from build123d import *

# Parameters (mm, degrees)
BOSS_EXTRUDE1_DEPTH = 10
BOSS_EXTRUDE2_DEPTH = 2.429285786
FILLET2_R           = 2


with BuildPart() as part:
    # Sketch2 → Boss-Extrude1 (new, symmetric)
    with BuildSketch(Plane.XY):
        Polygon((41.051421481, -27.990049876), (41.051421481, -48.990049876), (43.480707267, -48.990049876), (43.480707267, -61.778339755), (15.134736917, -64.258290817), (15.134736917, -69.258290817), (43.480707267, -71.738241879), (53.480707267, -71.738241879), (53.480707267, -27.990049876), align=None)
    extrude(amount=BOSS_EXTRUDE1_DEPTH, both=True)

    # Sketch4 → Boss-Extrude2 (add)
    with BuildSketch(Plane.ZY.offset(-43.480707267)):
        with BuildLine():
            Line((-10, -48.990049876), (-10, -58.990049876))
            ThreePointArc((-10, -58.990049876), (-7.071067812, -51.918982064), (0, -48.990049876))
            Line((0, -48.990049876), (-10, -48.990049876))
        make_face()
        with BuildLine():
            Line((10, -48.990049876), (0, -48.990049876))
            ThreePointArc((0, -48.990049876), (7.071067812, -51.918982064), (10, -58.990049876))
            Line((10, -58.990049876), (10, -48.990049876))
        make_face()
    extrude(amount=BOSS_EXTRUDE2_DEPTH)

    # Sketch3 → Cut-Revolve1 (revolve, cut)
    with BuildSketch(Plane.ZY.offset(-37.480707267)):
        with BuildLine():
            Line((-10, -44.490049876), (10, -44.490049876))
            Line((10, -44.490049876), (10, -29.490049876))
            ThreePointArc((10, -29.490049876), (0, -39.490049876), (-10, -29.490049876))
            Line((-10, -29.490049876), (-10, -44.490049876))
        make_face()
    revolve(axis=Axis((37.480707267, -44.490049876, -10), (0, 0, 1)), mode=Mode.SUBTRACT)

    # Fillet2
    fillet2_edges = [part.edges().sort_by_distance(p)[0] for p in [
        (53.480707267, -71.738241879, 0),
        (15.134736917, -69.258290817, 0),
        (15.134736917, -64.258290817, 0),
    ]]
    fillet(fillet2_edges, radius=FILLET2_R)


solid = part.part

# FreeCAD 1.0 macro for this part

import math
import FreeCAD as App
import Part
import Sketcher
Q = App.Units.Quantity


def edges_at(feature, points):
    """Names of the edges that pass closest to the given points."""
    edges = feature.Shape.Edges
    near = lambda p: min(range(len(edges)), key=lambda i: edges[i].distToShape(Part.Vertex(*p))[0])
    return sorted({f"Edge{near(p) + 1}" for p in points})


def add_polygon(sketch, points):
    """Adds a closed chain of lines whose ends are joined by coincident constraints."""
    first, n = sketch.GeometryCount, len(points)
    for a, b in zip(points, points[1:] + points[:1]):
        sketch.addGeometry(Part.LineSegment(App.Vector(*a, 0), App.Vector(*b, 0)), False)
    for i in range(n):
        sketch.addConstraint(Sketcher.Constraint("Coincident", first + i, 2, first + (i + 1) % n, 1))

doc = App.newDocument("Part")
body = doc.addObject("PartDesign::Body", "Body")

# Sketch on XY plane
sketch1 = body.newObject("Sketcher::SketchObject", "Sketch")
sketch1.AttachmentSupport = (doc.getObject("XY_Plane"), [""])
sketch1.MapMode = "FlatFace"
add_polygon(sketch1, [(41.051421, -27.99005), (41.051421, -48.99005), (43.480707, -48.99005), (43.480707, -61.77834), (15.134737, -64.258291), (15.134737, -69.258291), (43.480707, -71.738242), (53.480707, -71.738242), (53.480707, -27.99005)])  # lines 0-8
sketch1.addConstraint(Sketcher.Constraint("Vertical", 0))
sketch1.addConstraint(Sketcher.Constraint("Horizontal", 1))
sketch1.addConstraint(Sketcher.Constraint("Vertical", 2))
sketch1.addConstraint(Sketcher.Constraint("Vertical", 4))
sketch1.addConstraint(Sketcher.Constraint("Horizontal", 6))
sketch1.addConstraint(Sketcher.Constraint("Vertical", 7))
sketch1.addConstraint(Sketcher.Constraint("Horizontal", 8))
sketch1.addConstraint(Sketcher.Constraint("Vertical", 2, 2, 5, 2))
sketch1.addConstraint(Sketcher.Constraint("Equal", 3, 5))
sketch1.addConstraint(Sketcher.Constraint("DistanceX", 6, 1, 6, 2, Q("10 mm")))
sketch1.addConstraint(Sketcher.Constraint("DistanceY", 0, 2, 0, 1, Q("21 mm")))
sketch1.addConstraint(Sketcher.Constraint("DistanceY", 4, 2, 4, 1, Q("5 mm")))
sketch1.addConstraint(Sketcher.Constraint("Angle", 3, Q("-175 deg")))
sketch1.addConstraint(Sketcher.Constraint("DistanceY", 2, 2, 2, 1, Q("12.78829 mm")))
sketch1.addConstraint(Sketcher.Constraint("DistanceX", 1, 1, 1, 2, Q("2.429286 mm")))
sketch1.addConstraint(Sketcher.Constraint("DistanceY", 7, 1, 7, 2, Q("43.748192 mm")))
sketch1.addConstraint(Sketcher.Constraint("DistanceX", -1, 1, 0, 2, Q("41.051421 mm")))
sketch1.addConstraint(Sketcher.Constraint("DistanceY", 0, 2, -1, 1, Q("48.99005 mm")))
pad1 = body.newObject("PartDesign::Pad", "Pad")
pad1.Profile = sketch1
pad1.Length = 20
pad1.Midplane = True

# Sketch on YZ plane
sketch2 = body.newObject("Sketcher::SketchObject", "Sketch001")
sketch2.AttachmentSupport = (doc.getObject("YZ_Plane"), [""])
sketch2.MapMode = "FlatFace"
sketch2.AttachmentOffset = App.Placement(App.Vector(0, 0, 43.480707), App.Rotation())
sketch2.addGeometry(Part.LineSegment(App.Vector(-48.99005, -10, 0), App.Vector(-58.99005, -10, 0)), False)
sketch2.addGeometry(Part.ArcOfCircle(Part.Circle(App.Vector(-58.99005, 0, 0), App.Vector(0, 0, 1), 10), math.radians(-90), math.radians(0)), False)
sketch2.addGeometry(Part.LineSegment(App.Vector(-48.99005, 0, 0), App.Vector(-48.99005, -10, 0)), False)
sketch2.addGeometry(Part.LineSegment(App.Vector(-48.99005, 10, 0), App.Vector(-48.99005, 0, 0)), False)
sketch2.addGeometry(Part.ArcOfCircle(Part.Circle(App.Vector(-58.99005, 0, 0), App.Vector(0, 0, 1), 10), math.radians(0), math.radians(90)), False)
sketch2.addGeometry(Part.LineSegment(App.Vector(-58.99005, 10, 0), App.Vector(-48.99005, 10, 0)), False)
sketch2.addConstraint(Sketcher.Constraint("Tangent", 0, 2, 1, 1))
sketch2.addConstraint(Sketcher.Constraint("Tangent", 1, 2, 2, 1))
sketch2.addConstraint(Sketcher.Constraint("Coincident", 2, 2, 0, 1))
sketch2.addConstraint(Sketcher.Constraint("Tangent", 3, 2, 4, 1))
sketch2.addConstraint(Sketcher.Constraint("Tangent", 4, 2, 5, 1))
sketch2.addConstraint(Sketcher.Constraint("Coincident", 5, 2, 3, 1))
sketch2.addConstraint(Sketcher.Constraint("Horizontal", 0))
sketch2.addConstraint(Sketcher.Constraint("Vertical", 2))
sketch2.addConstraint(Sketcher.Constraint("Vertical", 3))
sketch2.addConstraint(Sketcher.Constraint("Horizontal", 5))
sketch2.addConstraint(Sketcher.Constraint("Coincident", 4, 3, 1, 3))
sketch2.addConstraint(Sketcher.Constraint("Equal", 1, 4))
sketch2.addConstraint(Sketcher.Constraint("PointOnObject", 1, 3, -1))
sketch2.addConstraint(Sketcher.Constraint("Radius", 1, Q("10 mm")))
sketch2.addConstraint(Sketcher.Constraint("DistanceX", 1, 3, -1, 1, Q("58.99005 mm")))
pad2 = body.newObject("PartDesign::Pad", "Pad001")
pad2.Profile = sketch2
pad2.Length = 2.429286
pad2.Reversed = True

# Sketch on YZ plane
sketch3 = body.newObject("Sketcher::SketchObject", "Sketch002")
sketch3.AttachmentSupport = (doc.getObject("YZ_Plane"), [""])
sketch3.MapMode = "FlatFace"
sketch3.AttachmentOffset = App.Placement(App.Vector(0, 0, 37.480707), App.Rotation())
sketch3.addGeometry(Part.LineSegment(App.Vector(-44.49005, -10, 0), App.Vector(-44.49005, 10, 0)), False)
sketch3.addGeometry(Part.LineSegment(App.Vector(-44.49005, 10, 0), App.Vector(-29.49005, 10, 0)), False)
sketch3.addGeometry(Part.ArcOfCircle(Part.Circle(App.Vector(-29.49005, 0, 0), App.Vector(0, 0, 1), 10), math.radians(90), math.radians(270)), False)
sketch3.addGeometry(Part.LineSegment(App.Vector(-29.49005, -10, 0), App.Vector(-44.49005, -10, 0)), False)
sketch3.addGeometry(Part.LineSegment(App.Vector(-44.49005, -10, 0), App.Vector(-44.49005, 10, 0)), True)  # axis
sketch3.addConstraint(Sketcher.Constraint("Coincident", 0, 2, 1, 1))
sketch3.addConstraint(Sketcher.Constraint("Tangent", 1, 2, 2, 1))
sketch3.addConstraint(Sketcher.Constraint("Tangent", 2, 2, 3, 1))
sketch3.addConstraint(Sketcher.Constraint("Coincident", 3, 2, 0, 1))
sketch3.addConstraint(Sketcher.Constraint("Vertical", 0))
sketch3.addConstraint(Sketcher.Constraint("Horizontal", 1))
sketch3.addConstraint(Sketcher.Constraint("Horizontal", 3))
sketch3.addConstraint(Sketcher.Constraint("Vertical", 4))
sketch3.addConstraint(Sketcher.Constraint("Coincident", 4, 1, 3, 2))
sketch3.addConstraint(Sketcher.Constraint("PointOnObject", 2, 3, -1))
sketch3.addConstraint(Sketcher.Constraint("Horizontal", 1, 2, 4, 2))
sketch3.addConstraint(Sketcher.Constraint("Radius", 2, Q("10 mm")))
sketch3.addConstraint(Sketcher.Constraint("DistanceX", 1, 1, 1, 2, Q("15 mm")))
sketch3.addConstraint(Sketcher.Constraint("DistanceX", 2, 3, -1, 1, Q("29.49005 mm")))
groove = body.newObject("PartDesign::Groove", "Groove")
groove.Profile = sketch3
groove.ReferenceAxis = (sketch3, ["Axis0"])
groove.Angle = 360
doc.recompute()

fillet = body.newObject("PartDesign::Fillet", "Fillet")
fillet.Base = (groove, edges_at(groove, [(53.481, -71.738, 0), (15.135, -69.258, 0), (15.135, -64.258, 0)]))
fillet.Radius = 2

doc.recompute()
